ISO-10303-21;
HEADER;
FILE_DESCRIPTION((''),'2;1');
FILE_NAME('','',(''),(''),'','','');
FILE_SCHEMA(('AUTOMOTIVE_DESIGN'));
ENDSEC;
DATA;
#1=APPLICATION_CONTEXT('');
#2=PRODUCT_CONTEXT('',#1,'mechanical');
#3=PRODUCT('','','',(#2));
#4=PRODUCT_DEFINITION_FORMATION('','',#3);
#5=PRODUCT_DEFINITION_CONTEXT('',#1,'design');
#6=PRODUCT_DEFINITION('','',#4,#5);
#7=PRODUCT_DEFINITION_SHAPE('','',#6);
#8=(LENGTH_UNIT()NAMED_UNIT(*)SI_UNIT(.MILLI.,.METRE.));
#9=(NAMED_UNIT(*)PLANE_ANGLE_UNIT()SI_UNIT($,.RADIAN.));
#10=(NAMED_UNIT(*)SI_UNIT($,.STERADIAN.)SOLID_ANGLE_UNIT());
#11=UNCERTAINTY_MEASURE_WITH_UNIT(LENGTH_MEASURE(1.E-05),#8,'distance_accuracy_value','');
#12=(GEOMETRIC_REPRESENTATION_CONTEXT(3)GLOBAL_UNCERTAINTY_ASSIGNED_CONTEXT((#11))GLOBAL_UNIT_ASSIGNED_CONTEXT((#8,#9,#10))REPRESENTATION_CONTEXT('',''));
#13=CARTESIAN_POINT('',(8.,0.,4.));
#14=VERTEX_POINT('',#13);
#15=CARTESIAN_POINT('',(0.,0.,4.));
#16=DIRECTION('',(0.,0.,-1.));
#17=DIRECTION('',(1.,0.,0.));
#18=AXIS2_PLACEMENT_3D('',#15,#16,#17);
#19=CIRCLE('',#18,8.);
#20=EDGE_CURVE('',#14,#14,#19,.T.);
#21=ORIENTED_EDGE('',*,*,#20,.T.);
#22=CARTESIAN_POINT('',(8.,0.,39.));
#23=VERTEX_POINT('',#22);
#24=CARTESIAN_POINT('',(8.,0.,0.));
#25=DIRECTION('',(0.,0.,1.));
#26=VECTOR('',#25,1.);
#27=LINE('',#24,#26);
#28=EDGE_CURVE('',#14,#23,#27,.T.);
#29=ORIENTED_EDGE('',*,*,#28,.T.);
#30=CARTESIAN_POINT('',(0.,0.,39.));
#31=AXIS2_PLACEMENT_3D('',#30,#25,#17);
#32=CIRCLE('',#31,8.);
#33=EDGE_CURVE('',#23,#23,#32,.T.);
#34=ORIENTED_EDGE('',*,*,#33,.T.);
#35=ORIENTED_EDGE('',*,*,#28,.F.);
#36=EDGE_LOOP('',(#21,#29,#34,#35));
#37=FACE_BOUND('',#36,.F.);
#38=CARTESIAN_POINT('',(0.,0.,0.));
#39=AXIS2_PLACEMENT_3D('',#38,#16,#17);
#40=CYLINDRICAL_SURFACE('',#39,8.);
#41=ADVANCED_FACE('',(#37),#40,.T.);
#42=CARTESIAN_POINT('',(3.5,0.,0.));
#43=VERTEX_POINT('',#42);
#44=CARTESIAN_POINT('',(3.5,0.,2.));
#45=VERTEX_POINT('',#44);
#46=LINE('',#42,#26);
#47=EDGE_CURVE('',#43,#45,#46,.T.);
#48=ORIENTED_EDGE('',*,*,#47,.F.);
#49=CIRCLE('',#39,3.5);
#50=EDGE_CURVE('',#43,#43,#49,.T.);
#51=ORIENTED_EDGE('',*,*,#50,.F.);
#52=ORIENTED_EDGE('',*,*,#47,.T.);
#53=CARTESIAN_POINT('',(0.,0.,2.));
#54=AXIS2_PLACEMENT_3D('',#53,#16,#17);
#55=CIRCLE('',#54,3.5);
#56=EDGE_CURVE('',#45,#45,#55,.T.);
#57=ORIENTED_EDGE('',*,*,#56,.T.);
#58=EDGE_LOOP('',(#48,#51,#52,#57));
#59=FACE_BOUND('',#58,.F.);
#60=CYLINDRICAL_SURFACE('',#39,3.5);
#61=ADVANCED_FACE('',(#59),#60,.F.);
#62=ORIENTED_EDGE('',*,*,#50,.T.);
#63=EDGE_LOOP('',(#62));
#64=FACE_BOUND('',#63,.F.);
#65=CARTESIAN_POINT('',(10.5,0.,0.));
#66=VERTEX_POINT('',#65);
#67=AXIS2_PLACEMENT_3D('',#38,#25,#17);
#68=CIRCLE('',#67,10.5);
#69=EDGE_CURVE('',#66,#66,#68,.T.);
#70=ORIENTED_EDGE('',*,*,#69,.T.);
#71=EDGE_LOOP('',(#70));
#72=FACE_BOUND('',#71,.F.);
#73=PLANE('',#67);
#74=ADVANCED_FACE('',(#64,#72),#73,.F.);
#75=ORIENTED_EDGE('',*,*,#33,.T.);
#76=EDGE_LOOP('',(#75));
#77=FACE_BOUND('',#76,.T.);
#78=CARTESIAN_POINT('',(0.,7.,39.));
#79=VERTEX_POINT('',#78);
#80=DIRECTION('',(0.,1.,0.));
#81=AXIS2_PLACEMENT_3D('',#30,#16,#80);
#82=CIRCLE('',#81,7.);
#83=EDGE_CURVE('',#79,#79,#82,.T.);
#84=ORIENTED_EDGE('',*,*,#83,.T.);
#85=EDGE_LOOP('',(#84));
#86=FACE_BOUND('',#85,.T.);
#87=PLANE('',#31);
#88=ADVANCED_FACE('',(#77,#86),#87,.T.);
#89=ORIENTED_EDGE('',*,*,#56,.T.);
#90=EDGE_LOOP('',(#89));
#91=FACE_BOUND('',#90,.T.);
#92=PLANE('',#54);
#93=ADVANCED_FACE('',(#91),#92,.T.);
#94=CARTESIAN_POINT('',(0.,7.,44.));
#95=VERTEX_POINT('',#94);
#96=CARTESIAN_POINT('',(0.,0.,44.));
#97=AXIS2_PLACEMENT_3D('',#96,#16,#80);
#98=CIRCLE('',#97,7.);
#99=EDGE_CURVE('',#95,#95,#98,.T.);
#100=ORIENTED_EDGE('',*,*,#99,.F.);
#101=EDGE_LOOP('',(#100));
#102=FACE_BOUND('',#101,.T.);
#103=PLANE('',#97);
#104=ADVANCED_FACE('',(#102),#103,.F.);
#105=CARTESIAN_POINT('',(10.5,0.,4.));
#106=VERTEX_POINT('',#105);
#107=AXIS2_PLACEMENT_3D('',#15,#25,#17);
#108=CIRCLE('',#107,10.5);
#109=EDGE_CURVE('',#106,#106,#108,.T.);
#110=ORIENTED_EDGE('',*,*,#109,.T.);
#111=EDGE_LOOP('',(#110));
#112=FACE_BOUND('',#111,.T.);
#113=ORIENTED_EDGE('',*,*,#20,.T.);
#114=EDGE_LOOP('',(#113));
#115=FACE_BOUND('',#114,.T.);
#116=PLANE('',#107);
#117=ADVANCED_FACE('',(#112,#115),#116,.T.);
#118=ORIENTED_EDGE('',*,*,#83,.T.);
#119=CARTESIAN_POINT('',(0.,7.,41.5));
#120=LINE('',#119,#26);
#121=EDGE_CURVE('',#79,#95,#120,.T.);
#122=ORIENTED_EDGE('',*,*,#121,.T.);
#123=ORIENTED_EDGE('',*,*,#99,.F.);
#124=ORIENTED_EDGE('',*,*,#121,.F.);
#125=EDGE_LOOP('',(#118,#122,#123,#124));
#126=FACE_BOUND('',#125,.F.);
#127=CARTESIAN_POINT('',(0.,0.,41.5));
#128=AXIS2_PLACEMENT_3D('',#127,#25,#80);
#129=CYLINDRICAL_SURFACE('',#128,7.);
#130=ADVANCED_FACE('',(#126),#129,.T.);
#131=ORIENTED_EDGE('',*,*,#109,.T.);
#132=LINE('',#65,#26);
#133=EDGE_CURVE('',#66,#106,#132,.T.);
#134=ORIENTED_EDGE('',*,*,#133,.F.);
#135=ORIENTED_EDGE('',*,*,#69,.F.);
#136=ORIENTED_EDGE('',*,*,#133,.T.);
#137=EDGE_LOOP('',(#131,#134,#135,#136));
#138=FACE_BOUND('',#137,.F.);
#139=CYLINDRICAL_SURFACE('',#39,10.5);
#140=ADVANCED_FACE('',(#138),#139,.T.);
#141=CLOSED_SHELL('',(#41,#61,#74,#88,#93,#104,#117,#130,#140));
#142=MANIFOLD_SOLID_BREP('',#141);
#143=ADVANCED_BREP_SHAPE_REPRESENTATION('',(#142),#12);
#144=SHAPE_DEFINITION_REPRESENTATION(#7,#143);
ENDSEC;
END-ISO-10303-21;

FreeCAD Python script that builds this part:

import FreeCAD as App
import Part
import Sketcher

V = App.Vector

doc = App.newDocument("Part")
body = doc.addObject("PartDesign::Body", "Body")

# Sketch on XY plane
sketch1 = body.newObject("Sketcher::SketchObject", "Sketch")
sketch1.AttachmentSupport = (doc.getObject("XY_Plane"), [""])
sketch1.MapMode = "FlatFace"
sketch1.addGeometry(Part.Circle(V(0, 0, 0), V(0, 0, 1), 10), False)
sketch1.addConstraint([
    Sketcher.Constraint("Coincident", 0, 3, -1, 1),
    Sketcher.Constraint("Diameter", 0, 21.0),
])
pad1 = body.newObject("PartDesign::Pad", "Pad")
pad1.Profile = sketch1
pad1.Length = 4

# Sketch on XY plane
sketch2 = body.newObject("Sketcher::SketchObject", "Sketch001")
sketch2.AttachmentSupport = (doc.getObject("XY_Plane"), [""])
sketch2.MapMode = "FlatFace"
sketch2.addGeometry(Part.Circle(V(0, 0, 0), V(0, 0, 1), 8), False)
sketch2.addConstraint([
    Sketcher.Constraint("Coincident", 0, 3, -1, 1),
    Sketcher.Constraint("Diameter", 0, 16.0),
])
pad2 = body.newObject("PartDesign::Pad", "Pad001")
pad2.Profile = sketch2
pad2.Length = 39

# Sketch on YZ plane
sketch3 = body.newObject("Sketcher::SketchObject", "Sketch002")
sketch3.AttachmentSupport = (doc.getObject("YZ_Plane"), [""])
sketch3.MapMode = "FlatFace"
sketch3.addGeometry([
    Part.LineSegment(V(0, 44, 0), V(0, 39, 0)),
    Part.LineSegment(V(0, 39, 0), V(7, 39, 0)),
    Part.LineSegment(V(7, 39, 0), V(7, 44, 0)),
    Part.LineSegment(V(7, 44, 0), V(0, 44, 0)),
], False)
sketch3.addConstraint([
    Sketcher.Constraint("Coincident", 0, 2, 1, 1),
    Sketcher.Constraint("Coincident", 1, 2, 2, 1),
    Sketcher.Constraint("Coincident", 2, 2, 3, 1),
    Sketcher.Constraint("Coincident", 3, 2, 0, 1),
    Sketcher.Constraint("Vertical", 0),
    Sketcher.Constraint("Horizontal", 1),
    Sketcher.Constraint("Vertical", 2),
    Sketcher.Constraint("Horizontal", 3),
    Sketcher.Constraint("PointOnObject", 0, 2, -2),
    Sketcher.Constraint("DistanceX", 1, 1, 1, 2, 7.0),
    Sketcher.Constraint("DistanceY", 0, 2, 0, 1, 5.0),
    Sketcher.Constraint("DistanceY", -1, 1, 0, 2, 39.0),
])
revolution = body.newObject("PartDesign::Revolution", "Revolution")
revolution.Profile = sketch3
revolution.ReferenceAxis = (sketch3, ["V_Axis"])
revolution.Angle = 360

# Sketch on XY plane
sketch4 = body.newObject("Sketcher::SketchObject", "Sketch003")
sketch4.AttachmentSupport = (doc.getObject("XY_Plane"), [""])
sketch4.MapMode = "FlatFace"
sketch4.addGeometry(Part.Circle(V(0, 0, 0), V(0, 0, 1), 3.5), False)
sketch4.addConstraint([
    Sketcher.Constraint("Coincident", 0, 3, -1, 1),
    Sketcher.Constraint("Diameter", 0, 7.0),
])
pocket1 = body.newObject("PartDesign::Pocket", "Pocket")
pocket1.Profile = sketch4
pocket1.Length = 2
pocket1.Reversed = True

doc.recompute()
